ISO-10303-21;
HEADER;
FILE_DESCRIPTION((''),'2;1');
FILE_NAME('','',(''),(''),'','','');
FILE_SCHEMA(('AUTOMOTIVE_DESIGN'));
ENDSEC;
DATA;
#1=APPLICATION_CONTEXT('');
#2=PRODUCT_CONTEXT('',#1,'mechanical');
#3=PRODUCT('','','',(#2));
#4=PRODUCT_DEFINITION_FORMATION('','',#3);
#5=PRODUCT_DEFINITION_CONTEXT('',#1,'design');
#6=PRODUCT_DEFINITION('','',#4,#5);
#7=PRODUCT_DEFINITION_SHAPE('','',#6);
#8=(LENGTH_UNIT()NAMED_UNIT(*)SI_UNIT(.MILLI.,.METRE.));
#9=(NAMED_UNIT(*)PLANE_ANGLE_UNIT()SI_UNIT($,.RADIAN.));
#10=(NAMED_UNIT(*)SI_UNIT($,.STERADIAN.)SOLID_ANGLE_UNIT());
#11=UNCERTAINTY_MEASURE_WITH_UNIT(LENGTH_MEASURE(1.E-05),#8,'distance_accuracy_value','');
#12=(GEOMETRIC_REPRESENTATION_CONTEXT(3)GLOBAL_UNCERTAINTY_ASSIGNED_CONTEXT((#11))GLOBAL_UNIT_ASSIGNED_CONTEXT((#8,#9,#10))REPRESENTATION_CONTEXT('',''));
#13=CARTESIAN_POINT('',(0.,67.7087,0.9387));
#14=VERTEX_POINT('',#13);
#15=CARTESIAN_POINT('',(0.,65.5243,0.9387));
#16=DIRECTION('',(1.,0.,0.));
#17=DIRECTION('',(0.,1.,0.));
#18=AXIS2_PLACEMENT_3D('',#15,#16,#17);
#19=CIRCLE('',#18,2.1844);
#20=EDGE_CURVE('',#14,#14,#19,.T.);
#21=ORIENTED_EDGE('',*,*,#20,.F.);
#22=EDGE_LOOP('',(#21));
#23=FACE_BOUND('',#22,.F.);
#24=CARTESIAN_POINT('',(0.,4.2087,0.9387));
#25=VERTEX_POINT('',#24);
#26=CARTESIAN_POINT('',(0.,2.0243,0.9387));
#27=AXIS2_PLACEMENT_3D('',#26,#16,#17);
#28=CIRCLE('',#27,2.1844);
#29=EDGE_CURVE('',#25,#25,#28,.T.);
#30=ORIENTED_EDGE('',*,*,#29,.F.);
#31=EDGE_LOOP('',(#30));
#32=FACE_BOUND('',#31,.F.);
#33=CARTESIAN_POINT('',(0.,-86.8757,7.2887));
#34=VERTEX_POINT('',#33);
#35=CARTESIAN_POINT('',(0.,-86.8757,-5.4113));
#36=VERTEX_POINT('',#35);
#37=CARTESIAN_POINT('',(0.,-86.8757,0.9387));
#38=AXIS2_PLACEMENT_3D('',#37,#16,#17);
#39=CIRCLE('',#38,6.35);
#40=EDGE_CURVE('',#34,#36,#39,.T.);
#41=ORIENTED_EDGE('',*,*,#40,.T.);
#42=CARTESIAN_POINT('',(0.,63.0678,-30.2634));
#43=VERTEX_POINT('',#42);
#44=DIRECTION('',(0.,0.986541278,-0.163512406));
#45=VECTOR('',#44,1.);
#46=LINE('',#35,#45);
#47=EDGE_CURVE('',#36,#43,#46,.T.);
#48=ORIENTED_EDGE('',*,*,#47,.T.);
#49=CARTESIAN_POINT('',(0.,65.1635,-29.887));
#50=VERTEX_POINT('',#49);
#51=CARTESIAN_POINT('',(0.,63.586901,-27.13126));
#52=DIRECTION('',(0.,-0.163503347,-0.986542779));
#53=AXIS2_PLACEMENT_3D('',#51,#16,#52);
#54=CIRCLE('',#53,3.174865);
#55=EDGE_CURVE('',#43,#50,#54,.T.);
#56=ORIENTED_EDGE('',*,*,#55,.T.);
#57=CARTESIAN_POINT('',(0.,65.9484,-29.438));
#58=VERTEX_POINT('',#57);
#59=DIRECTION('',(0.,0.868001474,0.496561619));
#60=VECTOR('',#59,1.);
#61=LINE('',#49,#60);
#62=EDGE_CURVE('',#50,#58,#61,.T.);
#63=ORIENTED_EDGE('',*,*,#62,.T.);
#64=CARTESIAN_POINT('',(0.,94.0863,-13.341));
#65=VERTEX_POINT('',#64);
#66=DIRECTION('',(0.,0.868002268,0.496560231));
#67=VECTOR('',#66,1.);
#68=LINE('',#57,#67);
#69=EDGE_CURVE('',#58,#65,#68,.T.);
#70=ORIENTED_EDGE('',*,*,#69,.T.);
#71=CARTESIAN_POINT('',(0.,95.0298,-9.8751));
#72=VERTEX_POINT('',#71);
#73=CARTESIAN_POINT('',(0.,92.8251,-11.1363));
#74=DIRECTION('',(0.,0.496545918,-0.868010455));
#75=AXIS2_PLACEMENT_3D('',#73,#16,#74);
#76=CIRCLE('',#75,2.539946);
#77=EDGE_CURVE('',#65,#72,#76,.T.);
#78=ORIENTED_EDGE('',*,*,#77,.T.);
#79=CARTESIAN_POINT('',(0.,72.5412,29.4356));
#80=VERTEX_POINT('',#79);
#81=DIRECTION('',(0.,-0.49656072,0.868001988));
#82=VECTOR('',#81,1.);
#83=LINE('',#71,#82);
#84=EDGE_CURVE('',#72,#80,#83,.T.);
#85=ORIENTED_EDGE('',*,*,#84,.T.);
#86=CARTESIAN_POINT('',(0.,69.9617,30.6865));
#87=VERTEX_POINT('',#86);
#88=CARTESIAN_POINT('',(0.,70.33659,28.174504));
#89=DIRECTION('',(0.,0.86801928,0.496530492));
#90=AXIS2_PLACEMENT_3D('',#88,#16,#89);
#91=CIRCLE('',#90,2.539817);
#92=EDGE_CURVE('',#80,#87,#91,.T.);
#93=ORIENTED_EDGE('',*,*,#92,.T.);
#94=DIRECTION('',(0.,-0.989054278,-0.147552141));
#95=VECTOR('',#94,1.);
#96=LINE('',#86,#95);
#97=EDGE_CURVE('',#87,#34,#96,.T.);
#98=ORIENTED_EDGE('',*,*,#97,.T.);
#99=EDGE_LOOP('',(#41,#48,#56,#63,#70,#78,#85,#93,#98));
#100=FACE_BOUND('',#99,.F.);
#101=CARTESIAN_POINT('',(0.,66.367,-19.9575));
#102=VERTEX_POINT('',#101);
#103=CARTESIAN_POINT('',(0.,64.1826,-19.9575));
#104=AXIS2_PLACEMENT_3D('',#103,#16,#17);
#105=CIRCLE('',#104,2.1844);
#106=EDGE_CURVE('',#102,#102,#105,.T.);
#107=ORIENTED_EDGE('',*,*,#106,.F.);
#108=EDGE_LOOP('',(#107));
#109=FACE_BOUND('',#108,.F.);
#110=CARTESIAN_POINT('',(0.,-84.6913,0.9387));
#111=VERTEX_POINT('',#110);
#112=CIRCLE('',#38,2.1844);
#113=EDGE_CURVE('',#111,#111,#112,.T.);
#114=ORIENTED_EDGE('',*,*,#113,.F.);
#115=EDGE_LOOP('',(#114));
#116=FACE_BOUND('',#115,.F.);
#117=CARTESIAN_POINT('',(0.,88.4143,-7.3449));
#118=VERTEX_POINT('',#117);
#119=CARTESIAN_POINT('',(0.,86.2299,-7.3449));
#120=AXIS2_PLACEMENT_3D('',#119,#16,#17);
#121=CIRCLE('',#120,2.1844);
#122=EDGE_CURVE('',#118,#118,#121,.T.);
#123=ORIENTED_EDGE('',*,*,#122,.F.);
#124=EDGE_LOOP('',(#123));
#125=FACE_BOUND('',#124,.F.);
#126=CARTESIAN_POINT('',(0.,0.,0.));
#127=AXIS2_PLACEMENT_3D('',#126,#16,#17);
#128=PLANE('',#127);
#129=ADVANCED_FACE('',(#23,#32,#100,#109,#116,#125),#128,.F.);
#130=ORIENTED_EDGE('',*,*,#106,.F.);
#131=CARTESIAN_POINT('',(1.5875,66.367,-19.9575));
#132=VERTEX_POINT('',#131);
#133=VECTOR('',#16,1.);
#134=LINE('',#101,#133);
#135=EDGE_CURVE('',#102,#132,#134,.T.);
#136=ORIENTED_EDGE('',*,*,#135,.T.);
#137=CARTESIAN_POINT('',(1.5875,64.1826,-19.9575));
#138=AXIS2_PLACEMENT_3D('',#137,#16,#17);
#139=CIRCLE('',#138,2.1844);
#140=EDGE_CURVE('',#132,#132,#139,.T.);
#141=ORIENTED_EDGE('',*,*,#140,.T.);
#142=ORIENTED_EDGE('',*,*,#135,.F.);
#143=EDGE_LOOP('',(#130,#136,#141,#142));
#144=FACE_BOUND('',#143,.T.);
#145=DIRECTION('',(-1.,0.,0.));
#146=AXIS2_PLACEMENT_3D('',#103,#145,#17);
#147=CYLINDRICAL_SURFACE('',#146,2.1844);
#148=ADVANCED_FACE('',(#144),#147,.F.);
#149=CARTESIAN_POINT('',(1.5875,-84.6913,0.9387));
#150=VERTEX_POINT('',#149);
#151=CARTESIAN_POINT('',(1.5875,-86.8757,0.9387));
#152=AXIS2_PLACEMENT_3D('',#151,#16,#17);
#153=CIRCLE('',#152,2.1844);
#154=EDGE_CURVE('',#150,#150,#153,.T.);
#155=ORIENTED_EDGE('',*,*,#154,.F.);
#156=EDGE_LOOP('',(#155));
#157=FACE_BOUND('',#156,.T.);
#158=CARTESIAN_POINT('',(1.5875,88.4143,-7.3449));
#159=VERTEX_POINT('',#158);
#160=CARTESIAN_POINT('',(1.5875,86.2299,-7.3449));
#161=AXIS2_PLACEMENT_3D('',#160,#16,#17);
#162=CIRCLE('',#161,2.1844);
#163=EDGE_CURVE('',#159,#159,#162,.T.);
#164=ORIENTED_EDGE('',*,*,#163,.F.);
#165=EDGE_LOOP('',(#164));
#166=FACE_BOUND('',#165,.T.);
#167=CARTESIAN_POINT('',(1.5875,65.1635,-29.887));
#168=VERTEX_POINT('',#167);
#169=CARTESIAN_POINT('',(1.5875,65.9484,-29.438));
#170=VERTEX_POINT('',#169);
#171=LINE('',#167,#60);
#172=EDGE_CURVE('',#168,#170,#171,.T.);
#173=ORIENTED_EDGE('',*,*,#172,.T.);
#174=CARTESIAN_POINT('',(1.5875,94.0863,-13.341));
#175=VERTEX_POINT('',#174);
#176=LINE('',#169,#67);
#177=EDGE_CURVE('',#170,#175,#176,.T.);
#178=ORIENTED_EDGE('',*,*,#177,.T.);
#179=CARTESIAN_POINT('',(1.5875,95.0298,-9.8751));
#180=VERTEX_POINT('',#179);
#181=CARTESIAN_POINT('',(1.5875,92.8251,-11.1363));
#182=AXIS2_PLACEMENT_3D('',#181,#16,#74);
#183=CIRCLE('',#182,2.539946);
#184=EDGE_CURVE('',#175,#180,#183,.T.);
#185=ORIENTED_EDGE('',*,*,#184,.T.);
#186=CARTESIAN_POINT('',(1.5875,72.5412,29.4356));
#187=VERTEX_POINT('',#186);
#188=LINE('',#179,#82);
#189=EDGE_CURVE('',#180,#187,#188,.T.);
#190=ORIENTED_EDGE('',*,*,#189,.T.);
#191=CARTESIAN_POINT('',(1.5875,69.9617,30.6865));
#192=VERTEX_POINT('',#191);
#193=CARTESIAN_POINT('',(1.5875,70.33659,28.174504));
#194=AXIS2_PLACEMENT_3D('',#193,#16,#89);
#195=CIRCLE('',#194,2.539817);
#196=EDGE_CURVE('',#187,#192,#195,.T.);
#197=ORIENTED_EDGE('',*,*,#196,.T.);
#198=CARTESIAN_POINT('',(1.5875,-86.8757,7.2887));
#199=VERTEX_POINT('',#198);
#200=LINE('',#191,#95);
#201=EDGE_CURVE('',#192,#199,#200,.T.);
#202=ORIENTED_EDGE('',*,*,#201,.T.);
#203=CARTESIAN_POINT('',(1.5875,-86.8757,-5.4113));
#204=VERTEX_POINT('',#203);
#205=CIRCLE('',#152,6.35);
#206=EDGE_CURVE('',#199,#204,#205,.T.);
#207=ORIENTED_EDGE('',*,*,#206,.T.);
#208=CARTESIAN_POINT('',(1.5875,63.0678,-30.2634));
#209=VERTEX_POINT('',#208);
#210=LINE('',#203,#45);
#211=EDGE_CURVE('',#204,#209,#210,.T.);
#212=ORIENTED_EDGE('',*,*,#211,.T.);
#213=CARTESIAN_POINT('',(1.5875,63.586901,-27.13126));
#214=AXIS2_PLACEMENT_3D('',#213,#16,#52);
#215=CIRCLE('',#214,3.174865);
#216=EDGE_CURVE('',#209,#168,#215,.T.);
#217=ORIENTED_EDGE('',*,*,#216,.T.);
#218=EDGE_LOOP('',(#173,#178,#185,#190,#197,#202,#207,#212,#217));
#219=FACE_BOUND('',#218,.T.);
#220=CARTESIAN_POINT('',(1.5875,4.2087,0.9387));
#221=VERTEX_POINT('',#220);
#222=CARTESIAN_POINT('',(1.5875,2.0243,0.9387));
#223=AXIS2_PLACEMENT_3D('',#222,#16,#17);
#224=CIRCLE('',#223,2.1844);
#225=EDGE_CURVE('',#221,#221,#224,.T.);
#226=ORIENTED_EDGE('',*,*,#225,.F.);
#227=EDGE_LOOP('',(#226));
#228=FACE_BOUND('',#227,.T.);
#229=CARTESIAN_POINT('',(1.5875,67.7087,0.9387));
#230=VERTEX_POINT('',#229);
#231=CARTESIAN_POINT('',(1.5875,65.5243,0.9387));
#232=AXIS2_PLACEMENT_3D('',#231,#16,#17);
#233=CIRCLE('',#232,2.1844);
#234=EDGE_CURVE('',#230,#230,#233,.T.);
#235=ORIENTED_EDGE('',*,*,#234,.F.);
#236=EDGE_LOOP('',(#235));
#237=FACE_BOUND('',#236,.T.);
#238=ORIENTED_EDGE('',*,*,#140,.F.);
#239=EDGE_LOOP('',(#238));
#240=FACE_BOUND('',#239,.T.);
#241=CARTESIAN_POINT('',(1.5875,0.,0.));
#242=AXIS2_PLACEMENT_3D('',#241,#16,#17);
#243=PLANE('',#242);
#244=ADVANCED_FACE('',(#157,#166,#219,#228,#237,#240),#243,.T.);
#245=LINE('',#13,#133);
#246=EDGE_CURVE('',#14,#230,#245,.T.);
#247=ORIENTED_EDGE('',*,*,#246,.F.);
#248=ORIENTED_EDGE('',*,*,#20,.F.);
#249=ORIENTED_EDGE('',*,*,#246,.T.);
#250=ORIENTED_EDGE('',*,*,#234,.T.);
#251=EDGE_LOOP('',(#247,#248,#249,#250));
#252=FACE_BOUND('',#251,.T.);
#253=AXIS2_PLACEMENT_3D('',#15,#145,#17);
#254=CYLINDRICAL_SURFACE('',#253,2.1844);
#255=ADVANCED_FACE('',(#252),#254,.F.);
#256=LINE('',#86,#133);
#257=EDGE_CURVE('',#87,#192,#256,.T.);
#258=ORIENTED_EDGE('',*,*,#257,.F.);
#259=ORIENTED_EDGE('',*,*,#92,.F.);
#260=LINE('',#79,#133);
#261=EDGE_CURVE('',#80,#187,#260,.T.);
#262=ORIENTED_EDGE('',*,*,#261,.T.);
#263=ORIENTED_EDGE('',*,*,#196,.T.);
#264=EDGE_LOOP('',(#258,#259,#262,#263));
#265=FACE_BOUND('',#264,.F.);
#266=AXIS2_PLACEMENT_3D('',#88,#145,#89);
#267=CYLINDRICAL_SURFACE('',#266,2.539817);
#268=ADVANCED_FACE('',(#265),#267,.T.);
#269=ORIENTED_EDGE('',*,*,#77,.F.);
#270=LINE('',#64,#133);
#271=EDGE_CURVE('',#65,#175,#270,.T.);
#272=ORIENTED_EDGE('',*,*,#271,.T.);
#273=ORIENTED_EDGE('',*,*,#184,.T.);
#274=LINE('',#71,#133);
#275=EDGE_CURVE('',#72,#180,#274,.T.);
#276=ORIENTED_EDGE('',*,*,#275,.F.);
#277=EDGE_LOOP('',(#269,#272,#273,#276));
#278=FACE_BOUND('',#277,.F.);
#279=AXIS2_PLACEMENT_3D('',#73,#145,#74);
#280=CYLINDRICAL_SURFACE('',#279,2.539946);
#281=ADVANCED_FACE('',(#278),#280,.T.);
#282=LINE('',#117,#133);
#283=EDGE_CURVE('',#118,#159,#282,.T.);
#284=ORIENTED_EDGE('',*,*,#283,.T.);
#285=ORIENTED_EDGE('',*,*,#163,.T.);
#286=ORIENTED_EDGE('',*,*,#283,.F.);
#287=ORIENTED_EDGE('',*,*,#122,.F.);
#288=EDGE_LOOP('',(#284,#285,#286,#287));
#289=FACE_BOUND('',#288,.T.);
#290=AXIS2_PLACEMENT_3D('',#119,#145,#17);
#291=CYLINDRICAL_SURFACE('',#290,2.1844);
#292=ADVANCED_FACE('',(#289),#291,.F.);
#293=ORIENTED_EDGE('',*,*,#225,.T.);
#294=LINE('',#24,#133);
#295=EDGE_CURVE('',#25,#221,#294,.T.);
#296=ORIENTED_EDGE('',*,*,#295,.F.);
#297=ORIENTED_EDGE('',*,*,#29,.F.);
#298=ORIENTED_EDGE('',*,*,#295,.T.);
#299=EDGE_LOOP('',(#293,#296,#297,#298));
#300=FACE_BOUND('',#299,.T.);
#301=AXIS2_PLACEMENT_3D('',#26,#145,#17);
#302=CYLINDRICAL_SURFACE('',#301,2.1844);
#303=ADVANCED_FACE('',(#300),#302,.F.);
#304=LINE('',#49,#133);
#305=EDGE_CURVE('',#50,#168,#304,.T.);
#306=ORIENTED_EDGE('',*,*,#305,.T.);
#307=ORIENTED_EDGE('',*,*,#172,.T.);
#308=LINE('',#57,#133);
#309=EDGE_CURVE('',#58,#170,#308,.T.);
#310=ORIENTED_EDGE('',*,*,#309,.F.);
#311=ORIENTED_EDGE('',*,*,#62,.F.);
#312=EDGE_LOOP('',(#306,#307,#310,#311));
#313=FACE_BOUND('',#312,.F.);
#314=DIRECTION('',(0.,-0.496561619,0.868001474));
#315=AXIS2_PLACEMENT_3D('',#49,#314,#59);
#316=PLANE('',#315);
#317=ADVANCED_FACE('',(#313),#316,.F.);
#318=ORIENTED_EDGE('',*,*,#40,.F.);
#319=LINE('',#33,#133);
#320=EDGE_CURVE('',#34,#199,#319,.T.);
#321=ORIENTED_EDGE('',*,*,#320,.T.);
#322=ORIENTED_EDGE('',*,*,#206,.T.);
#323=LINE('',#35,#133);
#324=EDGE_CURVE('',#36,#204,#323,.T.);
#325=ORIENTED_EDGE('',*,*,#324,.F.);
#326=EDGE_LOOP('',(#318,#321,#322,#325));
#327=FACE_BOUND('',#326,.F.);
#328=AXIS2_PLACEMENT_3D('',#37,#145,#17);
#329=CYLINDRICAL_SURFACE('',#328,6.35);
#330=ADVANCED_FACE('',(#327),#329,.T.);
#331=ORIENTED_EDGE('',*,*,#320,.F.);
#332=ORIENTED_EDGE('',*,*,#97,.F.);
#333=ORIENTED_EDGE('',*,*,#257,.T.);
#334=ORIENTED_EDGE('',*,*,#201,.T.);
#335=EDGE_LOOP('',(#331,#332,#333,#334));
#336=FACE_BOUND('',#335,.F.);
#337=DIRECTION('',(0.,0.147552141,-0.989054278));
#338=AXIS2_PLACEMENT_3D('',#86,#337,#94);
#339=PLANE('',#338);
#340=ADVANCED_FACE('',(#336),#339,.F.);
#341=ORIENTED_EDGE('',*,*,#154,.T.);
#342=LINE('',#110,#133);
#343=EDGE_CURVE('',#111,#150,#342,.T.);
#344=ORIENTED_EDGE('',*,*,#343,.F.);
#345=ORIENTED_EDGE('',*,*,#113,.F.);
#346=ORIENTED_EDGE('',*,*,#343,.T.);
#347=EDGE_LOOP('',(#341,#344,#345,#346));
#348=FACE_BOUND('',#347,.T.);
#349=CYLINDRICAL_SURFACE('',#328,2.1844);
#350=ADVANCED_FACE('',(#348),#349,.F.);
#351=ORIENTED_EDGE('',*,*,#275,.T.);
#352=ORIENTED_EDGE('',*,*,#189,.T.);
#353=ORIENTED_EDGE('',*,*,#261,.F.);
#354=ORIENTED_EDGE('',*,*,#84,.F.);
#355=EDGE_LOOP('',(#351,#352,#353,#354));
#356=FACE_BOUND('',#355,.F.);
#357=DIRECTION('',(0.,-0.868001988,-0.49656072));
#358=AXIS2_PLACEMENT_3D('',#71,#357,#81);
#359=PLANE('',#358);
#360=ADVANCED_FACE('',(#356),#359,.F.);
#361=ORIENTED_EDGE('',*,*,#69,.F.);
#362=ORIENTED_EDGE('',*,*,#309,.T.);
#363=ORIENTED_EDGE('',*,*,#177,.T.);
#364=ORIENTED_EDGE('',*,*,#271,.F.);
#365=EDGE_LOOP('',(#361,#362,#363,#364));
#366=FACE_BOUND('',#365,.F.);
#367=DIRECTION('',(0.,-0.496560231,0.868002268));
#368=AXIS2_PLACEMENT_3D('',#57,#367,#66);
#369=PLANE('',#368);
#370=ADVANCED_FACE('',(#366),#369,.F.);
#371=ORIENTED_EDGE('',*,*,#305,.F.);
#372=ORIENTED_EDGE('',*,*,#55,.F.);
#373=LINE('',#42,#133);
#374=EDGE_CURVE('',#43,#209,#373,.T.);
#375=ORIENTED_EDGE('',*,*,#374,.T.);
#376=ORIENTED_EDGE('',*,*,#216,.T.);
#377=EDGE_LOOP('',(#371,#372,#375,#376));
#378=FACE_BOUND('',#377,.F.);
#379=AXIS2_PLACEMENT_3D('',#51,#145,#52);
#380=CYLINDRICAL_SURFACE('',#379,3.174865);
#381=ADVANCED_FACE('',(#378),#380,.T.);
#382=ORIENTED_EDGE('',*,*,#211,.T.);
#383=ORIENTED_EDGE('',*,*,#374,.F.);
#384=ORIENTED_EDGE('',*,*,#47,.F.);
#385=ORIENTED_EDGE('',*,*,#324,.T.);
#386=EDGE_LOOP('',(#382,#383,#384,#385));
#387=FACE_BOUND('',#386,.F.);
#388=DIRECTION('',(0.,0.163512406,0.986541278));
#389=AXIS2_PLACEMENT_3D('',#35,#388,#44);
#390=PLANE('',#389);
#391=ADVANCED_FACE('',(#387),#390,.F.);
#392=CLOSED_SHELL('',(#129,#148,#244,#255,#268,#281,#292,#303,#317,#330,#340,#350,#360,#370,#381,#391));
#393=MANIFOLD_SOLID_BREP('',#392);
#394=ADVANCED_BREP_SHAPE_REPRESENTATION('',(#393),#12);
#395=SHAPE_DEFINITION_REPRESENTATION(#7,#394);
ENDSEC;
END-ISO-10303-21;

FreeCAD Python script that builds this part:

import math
import FreeCAD as App
import Part
import Sketcher
from FreeCAD import Vector
Q = App.Units.Quantity

doc = App.newDocument("Part")
body = doc.addObject("PartDesign::Body", "Body")

# Sketch on YZ plane
sketch1 = body.newObject("Sketcher::SketchObject", "Sketch")
sketch1.AttachmentSupport = (doc.getObject("YZ_Plane"), [""])
sketch1.MapMode = "FlatFace"
sketch1.addGeometry([
    Part.LineSegment(Vector(65.2, -29.9, 0), Vector(65.9, -29.4, 0)),  # 0
    Part.LineSegment(Vector(65.9, -29.4, 0), Vector(94.1, -13.3, 0)),  # 1
    Part.ArcOfCircle(Part.Circle(Vector(92.8, -11.1, 0), Vector(0, 0, 1), 2.5), math.radians(-60), math.radians(30)),  # 2
    Part.LineSegment(Vector(95, -9.9, 0), Vector(72.5, 29.4, 0)),  # 3
    Part.ArcOfCircle(Part.Circle(Vector(70.3, 28.2, 0), Vector(0, 0, 1), 2.5), math.radians(30), math.radians(98)),  # 4
    Part.LineSegment(Vector(70, 30.7, 0), Vector(-86.9, 7.3, 0)),  # 5
    Part.ArcOfCircle(Part.Circle(Vector(-86.9, 0.9, 0), Vector(0, 0, 1), 6.3), math.radians(90), math.radians(270)),  # 6
    Part.LineSegment(Vector(-86.9, -5.4, 0), Vector(63.1, -30.3, 0)),  # 7
    Part.ArcOfCircle(Part.Circle(Vector(63.6, -27.1, 0), Vector(0, 0, 1), 3.2), math.radians(-99), math.radians(-60)),  # 8
    Part.Circle(Vector(64.2, -20, 0), Vector(0, 0, 1), 2.2),  # 9
    Part.Circle(Vector(86.2, -7.3, 0), Vector(0, 0, 1), 2.2),  # 10
    Part.Circle(Vector(2, 0.9, 0), Vector(0, 0, 1), 2.2),  # 11
    Part.Circle(Vector(65.5, 0.9, 0), Vector(0, 0, 1), 2.2),  # 12
    Part.Circle(Vector(-86.9, 0.9, 0), Vector(0, 0, 1), 2.2),  # 13
], False)
sketch1.addConstraint([
    Sketcher.Constraint("Coincident", 0, 2, 1, 1),
    Sketcher.Constraint("Tangent", 1, 2, 2, 1),
    Sketcher.Constraint("Tangent", 2, 2, 3, 1),
    Sketcher.Constraint("Tangent", 3, 2, 4, 1),
    Sketcher.Constraint("Tangent", 4, 2, 5, 1),
    Sketcher.Constraint("Coincident", 5, 2, 6, 1),
    Sketcher.Constraint("Coincident", 6, 2, 7, 1),
    Sketcher.Constraint("Tangent", 7, 2, 8, 1),
    Sketcher.Constraint("Tangent", 8, 2, 0, 1),
    Sketcher.Constraint("Coincident", 13, 3, 6, 3),
    Sketcher.Constraint("Equal", 2, 4),
    Sketcher.Constraint("Equal", 9, 10),
    Sketcher.Constraint("Equal", 10, 11),
    Sketcher.Constraint("Equal", 11, 12),
    Sketcher.Constraint("Equal", 12, 13),
    Sketcher.Constraint("Parallel", 0, 1),
    Sketcher.Constraint("Perpendicular", 1, 3),
    Sketcher.Constraint("Horizontal", 6, 3, 11, 3),
    Sketcher.Constraint("Horizontal", 11, 3, 12, 3),
    Sketcher.Constraint("Vertical", 13, 3, 5, 2),
    Sketcher.Constraint("Vertical", 5, 2, 6, 2),
    Sketcher.Constraint("Radius", 2, Q("0.1 in")),
    Sketcher.Constraint("Radius", 6, Q("0.25 in")),
    Sketcher.Constraint("Radius", 8, Q("0.125 in")),
    Sketcher.Constraint("Diameter", 9, Q("0.172 in")),
    Sketcher.Constraint("DistanceX", 13, 3, 12, 3, Q("6 in")),
    Sketcher.Constraint("DistanceX", 6, 3, 11, 3, Q("3.5 in")),
    Sketcher.Constraint("Angle", 7, Q("-9.4108 deg")),
    Sketcher.Constraint("DistanceX", 9, 3, 10, 3, Q("0.868 in")),
    Sketcher.Constraint("Distance", 0, Q("0.0356 in")),
    Sketcher.Constraint("DistanceX", 6, 3, -1, 1, Q("3.4203 in")),
    Sketcher.Constraint("DistanceX", -1, 1, 0, 2, Q("2.5964 in")),
    Sketcher.Constraint("DistanceX", -1, 1, 4, 2, Q("2.7544 in")),
    Sketcher.Constraint("DistanceY", 2, 3, 6, 3, Q("0.4754 in")),
    Sketcher.Constraint("DistanceX", 8, 3, 2, 3, Q("1.1511 in")),
    Sketcher.Constraint("DistanceY", 9, 3, 2, 3, Q("0.3473 in")),
    Sketcher.Constraint("DistanceY", 10, 3, 4, 3, Q("1.3984 in")),
    Sketcher.Constraint("DistanceX", 10, 3, 1, 2, Q("0.3093 in")),
    Sketcher.Constraint("DistanceY", 2, 3, -1, 1, Q("11.1363 mm")),
])
pad1 = body.newObject("PartDesign::Pad", "Pad")
pad1.Profile = sketch1
pad1.Length = Q("0.0625 in")

doc.recompute()
